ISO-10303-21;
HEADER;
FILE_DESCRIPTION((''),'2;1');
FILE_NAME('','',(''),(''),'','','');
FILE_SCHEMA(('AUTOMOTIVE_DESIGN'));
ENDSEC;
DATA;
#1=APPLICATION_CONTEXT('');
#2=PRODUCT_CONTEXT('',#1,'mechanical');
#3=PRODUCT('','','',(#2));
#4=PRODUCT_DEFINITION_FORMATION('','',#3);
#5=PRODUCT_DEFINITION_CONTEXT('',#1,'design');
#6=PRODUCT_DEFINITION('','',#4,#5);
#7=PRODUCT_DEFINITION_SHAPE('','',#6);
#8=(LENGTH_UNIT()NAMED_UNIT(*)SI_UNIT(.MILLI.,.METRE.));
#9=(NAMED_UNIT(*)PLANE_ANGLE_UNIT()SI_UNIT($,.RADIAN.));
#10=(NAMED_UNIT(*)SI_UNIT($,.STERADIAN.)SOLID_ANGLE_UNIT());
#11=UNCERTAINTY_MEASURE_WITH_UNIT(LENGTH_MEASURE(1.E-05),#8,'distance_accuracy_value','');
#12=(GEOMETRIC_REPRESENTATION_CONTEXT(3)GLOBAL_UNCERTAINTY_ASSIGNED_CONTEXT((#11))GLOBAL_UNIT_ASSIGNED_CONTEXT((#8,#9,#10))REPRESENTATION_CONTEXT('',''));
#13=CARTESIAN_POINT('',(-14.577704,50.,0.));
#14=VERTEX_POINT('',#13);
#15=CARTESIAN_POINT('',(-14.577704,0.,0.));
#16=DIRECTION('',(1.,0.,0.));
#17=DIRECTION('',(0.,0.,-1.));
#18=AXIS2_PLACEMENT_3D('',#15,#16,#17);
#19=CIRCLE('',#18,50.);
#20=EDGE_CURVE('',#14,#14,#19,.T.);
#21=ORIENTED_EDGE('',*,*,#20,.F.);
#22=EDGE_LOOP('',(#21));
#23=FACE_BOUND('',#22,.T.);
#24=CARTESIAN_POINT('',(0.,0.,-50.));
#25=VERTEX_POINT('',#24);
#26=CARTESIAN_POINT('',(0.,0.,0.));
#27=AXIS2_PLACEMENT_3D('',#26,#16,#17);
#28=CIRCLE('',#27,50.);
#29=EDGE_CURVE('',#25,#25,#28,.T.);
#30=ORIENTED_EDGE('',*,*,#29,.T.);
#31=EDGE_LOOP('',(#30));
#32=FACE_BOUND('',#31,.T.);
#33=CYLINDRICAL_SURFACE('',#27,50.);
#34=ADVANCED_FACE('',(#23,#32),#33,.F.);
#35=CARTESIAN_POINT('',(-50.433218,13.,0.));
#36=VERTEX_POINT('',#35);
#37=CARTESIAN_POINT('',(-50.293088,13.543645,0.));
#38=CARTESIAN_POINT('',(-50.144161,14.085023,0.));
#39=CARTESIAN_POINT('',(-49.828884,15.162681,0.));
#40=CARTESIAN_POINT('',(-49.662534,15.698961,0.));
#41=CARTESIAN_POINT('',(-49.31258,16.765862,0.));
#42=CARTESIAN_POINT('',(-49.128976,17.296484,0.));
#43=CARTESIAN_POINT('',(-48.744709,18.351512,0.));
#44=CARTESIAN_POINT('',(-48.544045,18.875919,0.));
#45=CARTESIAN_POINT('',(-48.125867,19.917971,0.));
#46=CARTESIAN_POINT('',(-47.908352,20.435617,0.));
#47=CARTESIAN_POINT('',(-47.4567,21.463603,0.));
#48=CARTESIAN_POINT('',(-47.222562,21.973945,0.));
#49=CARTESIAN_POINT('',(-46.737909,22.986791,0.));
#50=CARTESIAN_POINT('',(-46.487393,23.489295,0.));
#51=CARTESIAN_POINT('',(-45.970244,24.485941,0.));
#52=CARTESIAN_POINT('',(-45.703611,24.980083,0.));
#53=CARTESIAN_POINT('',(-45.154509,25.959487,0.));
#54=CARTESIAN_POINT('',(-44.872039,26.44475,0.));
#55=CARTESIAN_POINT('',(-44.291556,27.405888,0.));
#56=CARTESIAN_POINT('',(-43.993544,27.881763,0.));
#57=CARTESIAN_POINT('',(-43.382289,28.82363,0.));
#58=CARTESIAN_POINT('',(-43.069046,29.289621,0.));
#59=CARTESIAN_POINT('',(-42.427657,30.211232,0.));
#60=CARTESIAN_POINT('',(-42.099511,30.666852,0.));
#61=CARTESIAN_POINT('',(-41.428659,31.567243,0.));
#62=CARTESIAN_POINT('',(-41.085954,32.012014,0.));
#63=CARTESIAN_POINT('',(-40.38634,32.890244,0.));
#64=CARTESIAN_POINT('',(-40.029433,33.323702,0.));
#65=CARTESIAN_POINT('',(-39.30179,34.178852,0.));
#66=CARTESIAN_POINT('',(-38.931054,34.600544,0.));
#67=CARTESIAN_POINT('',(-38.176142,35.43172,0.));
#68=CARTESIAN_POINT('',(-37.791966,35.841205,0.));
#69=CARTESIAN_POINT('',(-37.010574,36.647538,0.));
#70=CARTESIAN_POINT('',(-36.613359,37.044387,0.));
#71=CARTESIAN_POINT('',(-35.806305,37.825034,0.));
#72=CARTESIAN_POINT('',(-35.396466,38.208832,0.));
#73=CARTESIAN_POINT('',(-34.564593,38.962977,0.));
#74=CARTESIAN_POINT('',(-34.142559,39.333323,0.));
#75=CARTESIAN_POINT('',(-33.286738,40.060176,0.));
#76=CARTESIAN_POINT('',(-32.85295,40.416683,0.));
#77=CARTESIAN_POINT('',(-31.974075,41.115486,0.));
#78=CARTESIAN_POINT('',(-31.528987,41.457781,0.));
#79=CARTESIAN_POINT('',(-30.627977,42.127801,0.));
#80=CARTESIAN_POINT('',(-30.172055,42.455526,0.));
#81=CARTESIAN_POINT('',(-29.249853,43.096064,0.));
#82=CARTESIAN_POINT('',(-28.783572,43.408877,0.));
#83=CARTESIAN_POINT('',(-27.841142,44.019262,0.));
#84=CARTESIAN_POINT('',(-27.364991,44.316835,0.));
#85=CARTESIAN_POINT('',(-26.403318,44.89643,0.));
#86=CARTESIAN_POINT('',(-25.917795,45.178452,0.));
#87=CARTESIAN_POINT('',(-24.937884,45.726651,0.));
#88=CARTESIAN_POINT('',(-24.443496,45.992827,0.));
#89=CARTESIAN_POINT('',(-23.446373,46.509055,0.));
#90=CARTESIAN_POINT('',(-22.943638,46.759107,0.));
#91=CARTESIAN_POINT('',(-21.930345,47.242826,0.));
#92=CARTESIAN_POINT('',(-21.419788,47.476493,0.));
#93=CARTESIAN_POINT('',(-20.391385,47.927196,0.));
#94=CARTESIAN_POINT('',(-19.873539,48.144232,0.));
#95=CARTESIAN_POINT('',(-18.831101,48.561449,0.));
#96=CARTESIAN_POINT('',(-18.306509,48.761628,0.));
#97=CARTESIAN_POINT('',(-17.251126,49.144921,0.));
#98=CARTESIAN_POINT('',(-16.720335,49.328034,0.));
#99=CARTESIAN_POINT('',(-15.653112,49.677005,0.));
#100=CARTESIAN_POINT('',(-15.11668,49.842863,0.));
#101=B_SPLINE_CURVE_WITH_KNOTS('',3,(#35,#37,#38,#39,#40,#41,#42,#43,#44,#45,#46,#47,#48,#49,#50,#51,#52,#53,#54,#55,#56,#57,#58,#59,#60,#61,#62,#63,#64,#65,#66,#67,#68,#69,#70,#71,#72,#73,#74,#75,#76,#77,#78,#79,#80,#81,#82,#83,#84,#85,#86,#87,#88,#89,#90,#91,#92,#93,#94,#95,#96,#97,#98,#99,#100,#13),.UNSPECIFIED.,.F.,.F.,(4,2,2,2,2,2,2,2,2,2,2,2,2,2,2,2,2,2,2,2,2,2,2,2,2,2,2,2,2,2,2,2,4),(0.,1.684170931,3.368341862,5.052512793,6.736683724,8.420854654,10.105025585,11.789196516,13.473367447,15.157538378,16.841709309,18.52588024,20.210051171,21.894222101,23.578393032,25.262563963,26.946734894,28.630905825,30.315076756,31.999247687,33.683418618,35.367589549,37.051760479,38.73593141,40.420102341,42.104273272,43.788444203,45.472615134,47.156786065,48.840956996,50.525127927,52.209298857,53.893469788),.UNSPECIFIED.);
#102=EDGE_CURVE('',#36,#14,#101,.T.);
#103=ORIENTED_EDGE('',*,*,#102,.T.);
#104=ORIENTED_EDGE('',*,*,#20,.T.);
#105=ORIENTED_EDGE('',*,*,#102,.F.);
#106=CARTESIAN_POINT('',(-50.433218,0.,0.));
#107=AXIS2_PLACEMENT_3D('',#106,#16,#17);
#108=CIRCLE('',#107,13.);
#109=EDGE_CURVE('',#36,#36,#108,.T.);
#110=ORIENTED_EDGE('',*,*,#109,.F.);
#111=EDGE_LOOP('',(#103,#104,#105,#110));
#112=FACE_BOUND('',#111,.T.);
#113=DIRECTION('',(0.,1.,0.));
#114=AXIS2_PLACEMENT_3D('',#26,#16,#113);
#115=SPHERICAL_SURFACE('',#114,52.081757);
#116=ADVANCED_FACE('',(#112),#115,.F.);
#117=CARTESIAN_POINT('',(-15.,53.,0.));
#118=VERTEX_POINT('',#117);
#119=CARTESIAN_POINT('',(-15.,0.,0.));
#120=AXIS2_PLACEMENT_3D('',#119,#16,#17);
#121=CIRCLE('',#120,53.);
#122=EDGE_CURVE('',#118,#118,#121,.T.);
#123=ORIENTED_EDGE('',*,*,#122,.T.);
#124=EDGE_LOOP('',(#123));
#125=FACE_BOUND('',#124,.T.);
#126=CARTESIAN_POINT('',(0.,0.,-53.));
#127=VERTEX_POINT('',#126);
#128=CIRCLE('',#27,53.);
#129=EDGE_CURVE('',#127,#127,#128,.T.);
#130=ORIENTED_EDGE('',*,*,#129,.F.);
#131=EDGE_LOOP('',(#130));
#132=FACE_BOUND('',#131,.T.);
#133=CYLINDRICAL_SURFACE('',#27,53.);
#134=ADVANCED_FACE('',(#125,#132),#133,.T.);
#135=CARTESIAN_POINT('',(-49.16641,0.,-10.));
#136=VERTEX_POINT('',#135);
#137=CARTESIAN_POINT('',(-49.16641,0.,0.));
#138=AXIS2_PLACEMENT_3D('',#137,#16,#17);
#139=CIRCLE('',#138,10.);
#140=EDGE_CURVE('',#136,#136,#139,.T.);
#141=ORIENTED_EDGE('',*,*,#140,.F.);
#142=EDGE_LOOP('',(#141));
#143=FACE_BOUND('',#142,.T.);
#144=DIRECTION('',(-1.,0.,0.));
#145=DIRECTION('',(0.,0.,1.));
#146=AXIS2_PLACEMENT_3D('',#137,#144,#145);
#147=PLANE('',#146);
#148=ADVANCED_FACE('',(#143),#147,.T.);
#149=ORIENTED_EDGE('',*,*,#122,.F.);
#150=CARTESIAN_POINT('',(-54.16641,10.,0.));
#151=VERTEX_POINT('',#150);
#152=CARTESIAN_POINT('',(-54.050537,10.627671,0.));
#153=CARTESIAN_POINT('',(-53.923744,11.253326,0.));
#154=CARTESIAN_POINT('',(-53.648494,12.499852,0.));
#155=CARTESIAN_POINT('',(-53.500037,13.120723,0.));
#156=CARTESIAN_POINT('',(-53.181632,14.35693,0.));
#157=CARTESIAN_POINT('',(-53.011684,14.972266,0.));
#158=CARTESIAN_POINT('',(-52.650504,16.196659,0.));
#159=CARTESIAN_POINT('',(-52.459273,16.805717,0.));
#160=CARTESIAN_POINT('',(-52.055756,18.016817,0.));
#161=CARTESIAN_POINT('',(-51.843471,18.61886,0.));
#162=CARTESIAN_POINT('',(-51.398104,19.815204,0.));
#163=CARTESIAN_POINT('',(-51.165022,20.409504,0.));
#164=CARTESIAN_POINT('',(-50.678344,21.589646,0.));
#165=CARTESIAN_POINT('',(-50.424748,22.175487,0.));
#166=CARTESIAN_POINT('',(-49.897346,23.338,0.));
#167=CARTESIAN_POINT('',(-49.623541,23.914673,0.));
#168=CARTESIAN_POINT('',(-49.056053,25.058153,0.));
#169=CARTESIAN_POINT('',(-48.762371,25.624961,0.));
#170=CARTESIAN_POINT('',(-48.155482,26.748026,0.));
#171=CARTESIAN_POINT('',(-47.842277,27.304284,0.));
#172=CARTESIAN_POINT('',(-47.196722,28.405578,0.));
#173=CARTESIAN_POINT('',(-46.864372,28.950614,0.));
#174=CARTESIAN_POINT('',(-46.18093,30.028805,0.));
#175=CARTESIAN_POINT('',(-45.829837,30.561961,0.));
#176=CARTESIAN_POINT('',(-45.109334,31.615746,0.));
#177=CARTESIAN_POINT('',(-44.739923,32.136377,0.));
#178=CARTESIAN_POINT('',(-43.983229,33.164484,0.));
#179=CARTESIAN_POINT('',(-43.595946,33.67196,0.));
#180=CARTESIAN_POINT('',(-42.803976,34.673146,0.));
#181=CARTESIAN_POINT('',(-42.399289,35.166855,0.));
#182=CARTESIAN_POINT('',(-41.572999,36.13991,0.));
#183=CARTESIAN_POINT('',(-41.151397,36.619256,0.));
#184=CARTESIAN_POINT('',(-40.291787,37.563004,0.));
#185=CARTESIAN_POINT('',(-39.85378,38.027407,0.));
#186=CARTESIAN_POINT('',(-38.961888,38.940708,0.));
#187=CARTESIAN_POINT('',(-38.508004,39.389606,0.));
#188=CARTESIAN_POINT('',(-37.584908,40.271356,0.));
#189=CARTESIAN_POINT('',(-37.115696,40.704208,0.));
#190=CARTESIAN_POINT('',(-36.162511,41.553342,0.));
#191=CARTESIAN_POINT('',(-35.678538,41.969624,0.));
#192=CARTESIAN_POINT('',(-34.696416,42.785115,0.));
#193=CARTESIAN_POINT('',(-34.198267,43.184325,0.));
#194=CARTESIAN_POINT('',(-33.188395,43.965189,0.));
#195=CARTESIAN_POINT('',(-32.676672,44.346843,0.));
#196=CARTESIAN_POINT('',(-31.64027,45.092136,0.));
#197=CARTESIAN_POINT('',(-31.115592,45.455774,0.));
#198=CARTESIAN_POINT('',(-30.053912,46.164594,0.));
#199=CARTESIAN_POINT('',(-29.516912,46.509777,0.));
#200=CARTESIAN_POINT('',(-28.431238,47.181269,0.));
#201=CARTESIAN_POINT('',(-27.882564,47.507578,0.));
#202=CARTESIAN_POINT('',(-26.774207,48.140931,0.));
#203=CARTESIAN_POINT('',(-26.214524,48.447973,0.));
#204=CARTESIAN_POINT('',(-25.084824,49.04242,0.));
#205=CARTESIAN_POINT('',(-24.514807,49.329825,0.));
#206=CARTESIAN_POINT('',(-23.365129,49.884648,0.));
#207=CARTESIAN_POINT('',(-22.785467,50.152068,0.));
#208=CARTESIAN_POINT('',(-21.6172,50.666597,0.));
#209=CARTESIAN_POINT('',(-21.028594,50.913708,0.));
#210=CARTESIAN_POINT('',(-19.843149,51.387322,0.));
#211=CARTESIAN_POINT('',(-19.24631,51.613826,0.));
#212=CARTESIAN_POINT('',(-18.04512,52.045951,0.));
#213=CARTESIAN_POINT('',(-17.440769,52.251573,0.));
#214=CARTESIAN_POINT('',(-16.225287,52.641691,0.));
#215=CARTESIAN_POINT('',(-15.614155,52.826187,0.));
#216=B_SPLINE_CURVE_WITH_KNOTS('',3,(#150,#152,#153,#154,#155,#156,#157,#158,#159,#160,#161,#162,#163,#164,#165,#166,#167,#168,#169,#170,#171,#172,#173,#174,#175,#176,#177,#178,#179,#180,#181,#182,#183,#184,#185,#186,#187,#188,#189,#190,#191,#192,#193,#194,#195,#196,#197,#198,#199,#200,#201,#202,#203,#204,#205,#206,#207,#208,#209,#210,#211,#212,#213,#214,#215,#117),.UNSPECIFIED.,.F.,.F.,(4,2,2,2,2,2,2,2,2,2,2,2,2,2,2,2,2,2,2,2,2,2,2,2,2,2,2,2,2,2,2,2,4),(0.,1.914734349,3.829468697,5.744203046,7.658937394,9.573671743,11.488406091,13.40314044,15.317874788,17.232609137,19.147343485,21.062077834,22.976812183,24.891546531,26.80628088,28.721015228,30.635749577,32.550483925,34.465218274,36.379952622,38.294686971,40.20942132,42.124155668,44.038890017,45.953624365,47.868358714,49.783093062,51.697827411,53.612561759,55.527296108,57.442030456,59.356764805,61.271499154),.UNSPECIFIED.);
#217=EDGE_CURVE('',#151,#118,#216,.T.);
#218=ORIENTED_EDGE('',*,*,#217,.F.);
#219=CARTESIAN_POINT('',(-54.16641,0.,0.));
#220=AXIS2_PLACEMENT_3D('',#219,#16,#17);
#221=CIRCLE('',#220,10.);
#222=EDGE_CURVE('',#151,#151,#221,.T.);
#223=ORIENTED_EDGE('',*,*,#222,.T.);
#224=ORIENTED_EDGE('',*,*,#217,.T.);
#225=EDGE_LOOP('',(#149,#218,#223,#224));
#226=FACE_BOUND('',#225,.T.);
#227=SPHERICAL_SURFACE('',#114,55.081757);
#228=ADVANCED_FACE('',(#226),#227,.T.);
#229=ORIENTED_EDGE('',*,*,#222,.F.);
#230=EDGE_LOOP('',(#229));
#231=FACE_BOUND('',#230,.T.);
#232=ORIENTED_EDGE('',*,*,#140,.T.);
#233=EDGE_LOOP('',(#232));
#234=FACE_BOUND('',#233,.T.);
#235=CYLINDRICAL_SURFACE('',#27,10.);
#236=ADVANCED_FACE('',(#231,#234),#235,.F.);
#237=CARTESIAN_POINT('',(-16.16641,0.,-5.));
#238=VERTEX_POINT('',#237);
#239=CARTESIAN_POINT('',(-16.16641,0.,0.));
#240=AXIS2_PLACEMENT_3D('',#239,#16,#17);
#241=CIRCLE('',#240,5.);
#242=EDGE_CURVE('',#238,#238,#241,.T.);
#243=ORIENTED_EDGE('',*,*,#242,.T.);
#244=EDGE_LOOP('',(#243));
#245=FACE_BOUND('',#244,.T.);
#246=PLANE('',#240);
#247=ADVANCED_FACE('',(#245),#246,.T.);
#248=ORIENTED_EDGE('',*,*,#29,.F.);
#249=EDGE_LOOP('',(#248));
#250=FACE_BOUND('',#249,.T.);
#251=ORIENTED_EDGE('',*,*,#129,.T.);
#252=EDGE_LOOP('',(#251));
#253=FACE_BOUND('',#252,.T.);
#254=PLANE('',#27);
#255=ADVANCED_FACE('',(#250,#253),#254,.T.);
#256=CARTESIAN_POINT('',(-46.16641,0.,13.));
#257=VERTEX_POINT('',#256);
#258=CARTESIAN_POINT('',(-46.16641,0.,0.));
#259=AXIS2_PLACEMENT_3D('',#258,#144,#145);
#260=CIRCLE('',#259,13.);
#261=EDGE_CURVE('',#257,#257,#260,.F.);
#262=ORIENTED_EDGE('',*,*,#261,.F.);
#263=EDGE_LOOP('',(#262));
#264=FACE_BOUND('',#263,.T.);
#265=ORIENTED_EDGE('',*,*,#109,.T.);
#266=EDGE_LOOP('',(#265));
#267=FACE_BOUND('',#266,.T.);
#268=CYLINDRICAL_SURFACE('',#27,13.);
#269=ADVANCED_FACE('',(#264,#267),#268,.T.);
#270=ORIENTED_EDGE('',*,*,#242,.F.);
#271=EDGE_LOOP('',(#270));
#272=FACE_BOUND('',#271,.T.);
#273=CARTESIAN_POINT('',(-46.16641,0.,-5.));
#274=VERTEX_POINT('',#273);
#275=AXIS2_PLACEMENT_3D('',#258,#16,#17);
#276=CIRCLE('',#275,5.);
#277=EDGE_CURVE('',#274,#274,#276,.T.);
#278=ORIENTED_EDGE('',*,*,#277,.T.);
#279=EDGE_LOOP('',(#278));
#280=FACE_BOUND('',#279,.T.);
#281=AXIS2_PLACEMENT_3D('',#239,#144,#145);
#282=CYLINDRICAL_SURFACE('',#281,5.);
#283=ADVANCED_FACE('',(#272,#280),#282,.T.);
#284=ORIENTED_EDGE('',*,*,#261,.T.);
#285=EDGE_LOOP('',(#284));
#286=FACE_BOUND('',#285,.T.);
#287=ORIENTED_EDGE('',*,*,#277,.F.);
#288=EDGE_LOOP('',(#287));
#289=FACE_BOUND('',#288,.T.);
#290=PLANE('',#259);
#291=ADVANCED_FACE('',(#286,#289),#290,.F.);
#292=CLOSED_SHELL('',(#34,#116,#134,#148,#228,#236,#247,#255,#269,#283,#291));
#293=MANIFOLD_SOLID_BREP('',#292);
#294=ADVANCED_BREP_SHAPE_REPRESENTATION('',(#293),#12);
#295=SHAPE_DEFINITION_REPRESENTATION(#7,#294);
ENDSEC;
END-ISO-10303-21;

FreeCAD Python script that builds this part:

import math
import FreeCAD as App
import Part
import Sketcher

V = App.Vector


def faces_at(feature, points):
    """Names of the faces that lie closest to the given points."""
    faces = feature.Shape.Faces
    near = lambda p: min(range(len(faces)), key=lambda i: faces[i].distToShape(Part.Vertex(*p))[0])
    return sorted({f"Face{near(p) + 1}" for p in points})

doc = App.newDocument("Part")
body = doc.addObject("PartDesign::Body", "Body")

# Sketch on XY plane
sketch1 = body.newObject("Sketcher::SketchObject", "Sketch")
sketch1.AttachmentSupport = (doc.getObject("XY_Plane"), [""])
sketch1.MapMode = "FlatFace"
sketch1.addGeometry([
    Part.LineSegment(V(0, 0, 0), V(0, 53, 0)),  # 0
    Part.LineSegment(V(0, 53, 0), V(-15, 53, 0)),  # 1
    Part.ArcOfCircle(Part.Circle(V(0, 0, 0), V(0, 0, 1), 55.081757), math.radians(105.802514), math.radians(169.540042)),  # 2
    Part.LineSegment(V(-54.16641, 10, 0), V(-49.16641, 10, 0)),  # 3
    Part.LineSegment(V(-49.16641, 10, 0), V(-49.16641, 0, 0)),  # 4
    Part.LineSegment(V(-49.16641, 0, 0), V(0, 0, 0)),  # 5
], False)
sketch1.addConstraint([
    Sketcher.Constraint("Coincident", 0, 2, 1, 1),
    Sketcher.Constraint("Coincident", 1, 2, 2, 1),
    Sketcher.Constraint("Coincident", 2, 2, 3, 1),
    Sketcher.Constraint("Coincident", 3, 2, 4, 1),
    Sketcher.Constraint("Coincident", 4, 2, 5, 1),
    Sketcher.Constraint("Coincident", 5, 2, 0, 1),
    Sketcher.Constraint("Vertical", 0),
    Sketcher.Constraint("Horizontal", 1),
    Sketcher.Constraint("Horizontal", 3),
    Sketcher.Constraint("Vertical", 4),
    Sketcher.Constraint("Horizontal", 5),
    Sketcher.Constraint("Coincident", 2, 3, -1, 1),
    Sketcher.Constraint("Coincident", 5, 2, -1, 1),
    Sketcher.Constraint("DistanceX", 1, 2, 1, 1, 15.0),
    Sketcher.Constraint("DistanceX", 3, 1, 3, 2, 5.0),
    Sketcher.Constraint("DistanceY", 0, 1, 0, 2, 53.0),
    Sketcher.Constraint("DistanceY", 4, 2, 4, 1, 10.0),
])
revolution = body.newObject("PartDesign::Revolution", "Revolution")
revolution.Profile = sketch1
revolution.ReferenceAxis = (sketch1, ["H_Axis"])
revolution.Angle = 360
doc.recompute()

thickness = body.newObject("PartDesign::Thickness", "Thickness")
thickness.Base = (revolution, faces_at(revolution, [(0, 0, 0)]))
thickness.Value = 3
thickness.Reversed = True
thickness.Join = "Intersection"

# Sketch on YZ plane
sketch2 = body.newObject("Sketcher::SketchObject", "Sketch001")
sketch2.AttachmentSupport = (doc.getObject("YZ_Plane"), [""])
sketch2.MapMode = "FlatFace"
sketch2.AttachmentOffset = App.Placement(V(0, 0, -46.16641), App.Rotation())
sketch2.addGeometry(Part.Circle(V(0, 0, 0), V(0, 0, 1), 5), False)
sketch2.addConstraint([
    Sketcher.Constraint("Coincident", 0, 3, -1, 1),
    Sketcher.Constraint("Diameter", 0, 10.0),
])
pad1 = body.newObject("PartDesign::Pad", "Pad")
pad1.Profile = sketch2
pad1.Length = 30

doc.recompute()
